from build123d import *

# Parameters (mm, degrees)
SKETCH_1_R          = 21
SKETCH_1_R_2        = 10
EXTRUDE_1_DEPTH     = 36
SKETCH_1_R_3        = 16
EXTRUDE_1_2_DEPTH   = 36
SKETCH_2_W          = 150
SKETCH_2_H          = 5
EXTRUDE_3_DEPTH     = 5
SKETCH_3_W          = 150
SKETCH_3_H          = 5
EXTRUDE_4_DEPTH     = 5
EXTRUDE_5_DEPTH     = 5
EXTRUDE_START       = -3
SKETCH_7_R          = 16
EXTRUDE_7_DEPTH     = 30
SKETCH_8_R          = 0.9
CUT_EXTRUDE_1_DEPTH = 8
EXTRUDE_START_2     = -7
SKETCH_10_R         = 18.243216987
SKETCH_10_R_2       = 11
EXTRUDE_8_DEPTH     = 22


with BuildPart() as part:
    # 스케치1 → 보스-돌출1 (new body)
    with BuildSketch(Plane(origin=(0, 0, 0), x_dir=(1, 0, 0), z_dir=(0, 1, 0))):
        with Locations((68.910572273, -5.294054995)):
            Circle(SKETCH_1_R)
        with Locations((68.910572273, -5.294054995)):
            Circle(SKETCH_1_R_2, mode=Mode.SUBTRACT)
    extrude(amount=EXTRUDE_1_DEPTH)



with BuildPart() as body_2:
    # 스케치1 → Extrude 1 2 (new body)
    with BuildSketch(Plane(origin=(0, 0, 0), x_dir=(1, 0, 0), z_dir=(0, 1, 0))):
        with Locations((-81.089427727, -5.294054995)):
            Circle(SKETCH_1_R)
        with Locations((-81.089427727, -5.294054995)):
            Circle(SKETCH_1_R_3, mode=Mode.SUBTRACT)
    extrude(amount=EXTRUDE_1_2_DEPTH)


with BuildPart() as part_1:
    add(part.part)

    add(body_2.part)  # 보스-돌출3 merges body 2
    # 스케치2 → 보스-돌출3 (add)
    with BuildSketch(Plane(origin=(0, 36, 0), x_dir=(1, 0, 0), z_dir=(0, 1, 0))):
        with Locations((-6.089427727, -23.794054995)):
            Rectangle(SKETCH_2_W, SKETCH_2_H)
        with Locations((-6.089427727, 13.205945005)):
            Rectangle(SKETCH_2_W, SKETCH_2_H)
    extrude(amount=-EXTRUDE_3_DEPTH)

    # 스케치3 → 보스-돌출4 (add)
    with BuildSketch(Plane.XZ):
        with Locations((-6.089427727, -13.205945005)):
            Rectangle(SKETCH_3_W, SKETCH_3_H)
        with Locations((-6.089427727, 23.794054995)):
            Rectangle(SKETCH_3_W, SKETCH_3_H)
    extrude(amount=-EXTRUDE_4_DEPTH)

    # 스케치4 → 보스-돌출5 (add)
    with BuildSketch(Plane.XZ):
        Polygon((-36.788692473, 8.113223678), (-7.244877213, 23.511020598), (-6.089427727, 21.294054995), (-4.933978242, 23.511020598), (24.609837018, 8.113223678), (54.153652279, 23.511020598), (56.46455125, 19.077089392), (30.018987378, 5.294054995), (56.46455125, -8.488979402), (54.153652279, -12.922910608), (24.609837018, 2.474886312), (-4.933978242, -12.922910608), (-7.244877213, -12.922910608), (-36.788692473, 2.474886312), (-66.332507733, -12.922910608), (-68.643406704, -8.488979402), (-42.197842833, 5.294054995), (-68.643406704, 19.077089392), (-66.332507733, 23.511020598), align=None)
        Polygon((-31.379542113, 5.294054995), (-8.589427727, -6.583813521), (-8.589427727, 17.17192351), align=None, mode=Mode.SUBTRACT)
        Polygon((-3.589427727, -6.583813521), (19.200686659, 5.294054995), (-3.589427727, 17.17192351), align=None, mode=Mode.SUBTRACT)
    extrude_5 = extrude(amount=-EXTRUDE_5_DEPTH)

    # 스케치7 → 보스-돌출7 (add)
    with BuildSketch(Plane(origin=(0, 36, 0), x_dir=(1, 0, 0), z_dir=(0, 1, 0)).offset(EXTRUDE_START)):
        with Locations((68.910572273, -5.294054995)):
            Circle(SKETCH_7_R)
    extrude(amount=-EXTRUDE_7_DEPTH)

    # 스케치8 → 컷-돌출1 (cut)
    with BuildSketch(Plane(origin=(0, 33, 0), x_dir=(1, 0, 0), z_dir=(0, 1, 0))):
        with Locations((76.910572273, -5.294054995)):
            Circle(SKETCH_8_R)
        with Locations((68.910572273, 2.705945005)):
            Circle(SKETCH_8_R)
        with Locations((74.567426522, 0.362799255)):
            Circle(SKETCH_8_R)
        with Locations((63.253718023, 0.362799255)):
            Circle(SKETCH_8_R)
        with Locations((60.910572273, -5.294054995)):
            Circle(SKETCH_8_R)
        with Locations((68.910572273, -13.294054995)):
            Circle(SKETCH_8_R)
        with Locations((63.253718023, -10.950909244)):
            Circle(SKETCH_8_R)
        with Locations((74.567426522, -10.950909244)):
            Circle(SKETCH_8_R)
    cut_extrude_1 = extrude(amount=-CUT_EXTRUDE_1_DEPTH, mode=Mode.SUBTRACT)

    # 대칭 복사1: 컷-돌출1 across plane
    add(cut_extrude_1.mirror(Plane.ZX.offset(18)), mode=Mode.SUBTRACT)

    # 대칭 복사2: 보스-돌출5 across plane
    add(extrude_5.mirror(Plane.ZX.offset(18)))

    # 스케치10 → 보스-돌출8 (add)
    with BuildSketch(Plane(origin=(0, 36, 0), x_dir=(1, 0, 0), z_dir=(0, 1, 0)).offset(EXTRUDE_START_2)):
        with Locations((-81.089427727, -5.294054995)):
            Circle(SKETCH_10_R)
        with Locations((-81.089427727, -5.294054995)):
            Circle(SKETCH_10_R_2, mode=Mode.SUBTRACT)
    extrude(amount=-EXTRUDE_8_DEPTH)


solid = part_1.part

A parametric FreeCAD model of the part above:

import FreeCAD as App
import Part
import Sketcher

V = App.Vector
Q = App.Units.Quantity

doc = App.newDocument("Part")
body = doc.addObject("PartDesign::Body", "Body")

sketch1 = doc.addObject("Sketcher::SketchObject", "Sketch")
body.addObject(sketch1)
sketch1.AttachmentSupport = (doc.XZ_Plane, [""])
sketch1.MapMode = "FlatFace"
sketch1.addGeometry([
    Part.Circle(V(69, 5, 0), V(0, 0, 1), 21),
    Part.Circle(V(69, 5, 0), V(0, 0, 1), 10),
], False)
sketch1.addConstraint([
    Sketcher.Constraint("Coincident", 1, 3, 0, 3),
    Sketcher.Constraint("Diameter", 0, Q("42 mm")),
    Sketcher.Constraint("Diameter", 1, Q("20 mm")),
    Sketcher.Constraint("DistanceX", -1, 1, 0, 3, Q("68.910572 mm")),
    Sketcher.Constraint("DistanceY", -1, 1, 0, 3, Q("5.294055 mm")),
])
pad1 = doc.addObject("PartDesign::Pad", "Pad")
body.addObject(pad1)
pad1.Profile = sketch1
pad1.Length = 36
pad1.Reversed = True
body2 = doc.addObject("PartDesign::Body", "Body001")

sketch2 = doc.addObject("Sketcher::SketchObject", "Sketch001")
body2.addObject(sketch2)
sketch2.AttachmentSupport = (doc.getObject("XZ_Plane001"), [""])
sketch2.MapMode = "FlatFace"
sketch2.addGeometry([
    Part.Circle(V(-81, 5, 0), V(0, 0, 1), 21),
    Part.Circle(V(-81, 5, 0), V(0, 0, 1), 16),
], False)
sketch2.addConstraint([
    Sketcher.Constraint("Coincident", 1, 3, 0, 3),
    Sketcher.Constraint("Diameter", 0, Q("42 mm")),
    Sketcher.Constraint("Diameter", 1, Q("32 mm")),
    Sketcher.Constraint("DistanceX", 0, 3, -1, 1, Q("81.089428 mm")),
    Sketcher.Constraint("DistanceY", -1, 1, 0, 3, Q("5.294055 mm")),
])
pad2 = doc.addObject("PartDesign::Pad", "Pad001")
body2.addObject(pad2)
pad2.Profile = sketch2
pad2.Length = 36
pad2.Reversed = True
body.AllowCompound = True
doc.recompute()

boolean = doc.addObject("PartDesign::Boolean", "Boolean")
body.addObject(boolean)
boolean.Type = "Fuse"
boolean.addObjects([body2])

sketch3 = doc.addObject("Sketcher::SketchObject", "Sketch002")
body.addObject(sketch3)
sketch3.AttachmentSupport = (doc.XZ_Plane, [""])
sketch3.MapMode = "FlatFace"
sketch3.AttachmentOffset = App.Placement(V(0, 0, -36), App.Rotation())
sketch3.addGeometry([
    Part.LineSegment(V(-81, 21, 0), V(-81, 26, 0)),
    Part.LineSegment(V(-81, 26, 0), V(69, 26, 0)),
    Part.LineSegment(V(69, 26, 0), V(69, 21, 0)),
    Part.LineSegment(V(69, 21, 0), V(-81, 21, 0)),
    Part.LineSegment(V(-81, -16, 0), V(-81, -11, 0)),
    Part.LineSegment(V(-81, -11, 0), V(69, -11, 0)),
    Part.LineSegment(V(69, -11, 0), V(69, -16, 0)),
    Part.LineSegment(V(69, -16, 0), V(-81, -16, 0)),
], False)
sketch3.addConstraint([
    Sketcher.Constraint("Coincident", 0, 2, 1, 1),
    Sketcher.Constraint("Coincident", 1, 2, 2, 1),
    Sketcher.Constraint("Coincident", 2, 2, 3, 1),
    Sketcher.Constraint("Coincident", 3, 2, 0, 1),
    Sketcher.Constraint("Coincident", 4, 2, 5, 1),
    Sketcher.Constraint("Coincident", 5, 2, 6, 1),
    Sketcher.Constraint("Coincident", 6, 2, 7, 1),
    Sketcher.Constraint("Coincident", 7, 2, 4, 1),
    Sketcher.Constraint("Vertical", 0),
    Sketcher.Constraint("Horizontal", 1),
    Sketcher.Constraint("Vertical", 2),
    Sketcher.Constraint("Horizontal", 3),
    Sketcher.Constraint("Vertical", 4),
    Sketcher.Constraint("Horizontal", 5),
    Sketcher.Constraint("Vertical", 6),
    Sketcher.Constraint("Horizontal", 7),
    Sketcher.Constraint("Vertical", 3, 2, 4, 2),
    Sketcher.Constraint("Vertical", 2, 2, 5, 2),
    Sketcher.Constraint("Equal", 2, 4),
    Sketcher.Constraint("DistanceX", 1, 1, 1, 2, Q("150 mm")),
    Sketcher.Constraint("DistanceY", 0, 1, 0, 2, Q("5 mm")),
    Sketcher.Constraint("DistanceY", 4, 2, 3, 2, Q("32 mm")),
    Sketcher.Constraint("DistanceX", 0, 2, -1, 1, Q("81.089428 mm")),
    Sketcher.Constraint("DistanceY", -1, 1, 0, 2, Q("26.294055 mm")),
])
pad3 = doc.addObject("PartDesign::Pad", "Pad002")
body.addObject(pad3)
pad3.Profile = sketch3
pad3.Length = 5

sketch4 = doc.addObject("Sketcher::SketchObject", "Sketch003")
body.addObject(sketch4)
sketch4.AttachmentSupport = (doc.XZ_Plane, [""])
sketch4.MapMode = "FlatFace"
sketch4.addGeometry([
    Part.LineSegment(V(-81, -11, 0), V(-81, -16, 0)),
    Part.LineSegment(V(-81, -16, 0), V(69, -16, 0)),
    Part.LineSegment(V(69, -16, 0), V(69, -11, 0)),
    Part.LineSegment(V(69, -11, 0), V(-81, -11, 0)),
    Part.LineSegment(V(-81, 26, 0), V(-81, 21, 0)),
    Part.LineSegment(V(-81, 21, 0), V(69, 21, 0)),
    Part.LineSegment(V(69, 21, 0), V(69, 26, 0)),
    Part.LineSegment(V(69, 26, 0), V(-81, 26, 0)),
], False)
sketch4.addConstraint([
    Sketcher.Constraint("Coincident", 0, 2, 1, 1),
    Sketcher.Constraint("Coincident", 1, 2, 2, 1),
    Sketcher.Constraint("Coincident", 2, 2, 3, 1),
    Sketcher.Constraint("Coincident", 3, 2, 0, 1),
    Sketcher.Constraint("Coincident", 4, 2, 5, 1),
    Sketcher.Constraint("Coincident", 5, 2, 6, 1),
    Sketcher.Constraint("Coincident", 6, 2, 7, 1),
    Sketcher.Constraint("Coincident", 7, 2, 4, 1),
    Sketcher.Constraint("Vertical", 0),
    Sketcher.Constraint("Horizontal", 1),
    Sketcher.Constraint("Vertical", 2),
    Sketcher.Constraint("Horizontal", 3),
    Sketcher.Constraint("Vertical", 4),
    Sketcher.Constraint("Horizontal", 5),
    Sketcher.Constraint("Vertical", 6),
    Sketcher.Constraint("Horizontal", 7),
    Sketcher.Constraint("Vertical", 3, 2, 4, 2),
    Sketcher.Constraint("Vertical", 2, 2, 5, 2),
    Sketcher.Constraint("Equal", 2, 4),
    Sketcher.Constraint("DistanceX", 1, 1, 1, 2, Q("150 mm")),
    Sketcher.Constraint("DistanceY", 0, 2, 0, 1, Q("5 mm")),
    Sketcher.Constraint("DistanceY", 3, 2, 4, 2, Q("32 mm")),
    Sketcher.Constraint("DistanceX", 0, 2, -1, 1, Q("81.089428 mm")),
    Sketcher.Constraint("DistanceY", 0, 2, -1, 1, Q("15.705945 mm")),
])
pad4 = doc.addObject("PartDesign::Pad", "Pad003")
body.addObject(pad4)
pad4.Profile = sketch4
pad4.Length = 5
pad4.Reversed = True

sketch5 = doc.addObject("Sketcher::SketchObject", "Sketch004")
body.addObject(sketch5)
sketch5.AttachmentSupport = (doc.XZ_Plane, [""])
sketch5.MapMode = "FlatFace"
sketch5.addGeometry([
    Part.LineSegment(V(-7.2, 23.5, 0), V(-36.8, 8.1, 0)),
    Part.LineSegment(V(-36.8, 8.1, 0), V(-66.3, 23.5, 0)),
    Part.LineSegment(V(-66.3, 23.5, 0), V(-68.6, 19.1, 0)),
    Part.LineSegment(V(-68.6, 19.1, 0), V(-42.2, 5.3, 0)),
    Part.LineSegment(V(-42.2, 5.3, 0), V(-68.6, -8.5, 0)),
    Part.LineSegment(V(-68.6, -8.5, 0), V(-66.3, -12.9, 0)),
    Part.LineSegment(V(-66.3, -12.9, 0), V(-36.8, 2.5, 0)),
    Part.LineSegment(V(-36.8, 2.5, 0), V(-7.2, -12.9, 0)),
    Part.LineSegment(V(-7.2, -12.9, 0), V(-4.9, -12.9, 0)),
    Part.LineSegment(V(-4.9, -12.9, 0), V(24.6, 2.5, 0)),
    Part.LineSegment(V(24.6, 2.5, 0), V(54.2, -12.9, 0)),
    Part.LineSegment(V(54.2, -12.9, 0), V(56.5, -8.5, 0)),
    Part.LineSegment(V(56.5, -8.5, 0), V(30, 5.3, 0)),
    Part.LineSegment(V(30, 5.3, 0), V(56.5, 19.1, 0)),
    Part.LineSegment(V(56.5, 19.1, 0), V(54.2, 23.5, 0)),
    Part.LineSegment(V(54.2, 23.5, 0), V(24.6, 8.1, 0)),
    Part.LineSegment(V(24.6, 8.1, 0), V(-4.9, 23.5, 0)),
    Part.LineSegment(V(-4.9, 23.5, 0), V(-6.1, 21.3, 0)),
    Part.LineSegment(V(-6.1, 21.3, 0), V(-7.2, 23.5, 0)),
    Part.LineSegment(V(-3.6, -6.6, 0), V(-3.6, 17.2, 0)),
    Part.LineSegment(V(-3.6, 17.2, 0), V(19.2, 5.3, 0)),
    Part.LineSegment(V(19.2, 5.3, 0), V(-3.6, -6.6, 0)),
    Part.LineSegment(V(-31.4, 5.3, 0), V(-8.6, 17.2, 0)),
    Part.LineSegment(V(-8.6, 17.2, 0), V(-8.6, -6.6, 0)),
    Part.LineSegment(V(-8.6, -6.6, 0), V(-31.4, 5.3, 0)),
], False)
sketch5.addConstraint([
    Sketcher.Constraint("Coincident", 0, 2, 1, 1),
    Sketcher.Constraint("Coincident", 1, 2, 2, 1),
    Sketcher.Constraint("Coincident", 2, 2, 3, 1),
    Sketcher.Constraint("Coincident", 3, 2, 4, 1),
    Sketcher.Constraint("Coincident", 4, 2, 5, 1),
    Sketcher.Constraint("Coincident", 5, 2, 6, 1),
    Sketcher.Constraint("Coincident", 6, 2, 7, 1),
    Sketcher.Constraint("Coincident", 7, 2, 8, 1),
    Sketcher.Constraint("Coincident", 8, 2, 9, 1),
    Sketcher.Constraint("Coincident", 9, 2, 10, 1),
    Sketcher.Constraint("Coincident", 10, 2, 11, 1),
    Sketcher.Constraint("Coincident", 11, 2, 12, 1),
    Sketcher.Constraint("Coincident", 12, 2, 13, 1),
    Sketcher.Constraint("Coincident", 13, 2, 14, 1),
    Sketcher.Constraint("Coincident", 14, 2, 15, 1),
    Sketcher.Constraint("Coincident", 15, 2, 16, 1),
    Sketcher.Constraint("Coincident", 16, 2, 17, 1),
    Sketcher.Constraint("Coincident", 17, 2, 18, 1),
    Sketcher.Constraint("Coincident", 18, 2, 0, 1),
    Sketcher.Constraint("Coincident", 19, 2, 20, 1),
    Sketcher.Constraint("Coincident", 20, 2, 21, 1),
    Sketcher.Constraint("Coincident", 21, 2, 19, 1),
    Sketcher.Constraint("Coincident", 22, 2, 23, 1),
    Sketcher.Constraint("Coincident", 23, 2, 24, 1),
    Sketcher.Constraint("Coincident", 24, 2, 22, 1),
    Sketcher.Constraint("Horizontal", 8),
    Sketcher.Constraint("Vertical", 19),
    Sketcher.Constraint("Vertical", 23),
    Sketcher.Constraint("Perpendicular", 1, 2),
    Sketcher.Constraint("Perpendicular", 2, 3),
    Sketcher.Constraint("Parallel", 0, 4),
    Sketcher.Constraint("Perpendicular", 4, 5),
    Sketcher.Constraint("Perpendicular", 5, 6),
    Sketcher.Constraint("Parallel", 3, 7),
    Sketcher.Constraint("Parallel", 6, 9),
    Sketcher.Constraint("Parallel", 7, 10),
    Sketcher.Constraint("Perpendicular", 10, 11),
    Sketcher.Constraint("Perpendicular", 11, 12),
    Sketcher.Constraint("Parallel", 9, 13),
    Sketcher.Constraint("Perpendicular", 13, 14),
    Sketcher.Constraint("Perpendicular", 14, 15),
    Sketcher.Constraint("Parallel", 12, 16),
    Sketcher.Constraint("Perpendicular", 16, 17),
    Sketcher.Constraint("Perpendicular", 15, 18),
    Sketcher.Constraint("Perpendicular", 17, 20),
    Sketcher.Constraint("Perpendicular", 18, 21),
    Sketcher.Constraint("Parallel", 21, 22),
    Sketcher.Constraint("Parallel", 20, 24),
    Sketcher.Constraint("Horizontal", 5, 2, 7, 2),
    Sketcher.Constraint("Horizontal", 6, 2, 9, 2),
    Sketcher.Constraint("Horizontal", 8, 2, 10, 2),
    Sketcher.Constraint("Horizontal", 4, 2, 11, 2),
    Sketcher.Constraint("Horizontal", 3, 2, 12, 2),
    Sketcher.Constraint("Horizontal", 2, 2, 13, 2),
    Sketcher.Constraint("Horizontal", 1, 2, 14, 2),
    Sketcher.Constraint("Horizontal", 0, 2, 15, 2),
    Sketcher.Constraint("Horizontal", 14, 2, 16, 2),
    Sketcher.Constraint("Horizontal", 16, 2, 18, 2),
    Sketcher.Constraint("Horizontal", 12, 2, 20, 2),
    Sketcher.Constraint("Horizontal", 19, 2, 22, 2),
    Sketcher.Constraint("Horizontal", 21, 2, 23, 2),
    Sketcher.Constraint("Horizontal", 20, 2, 24, 2),
    Sketcher.Constraint("Vertical", 2, 2, 4, 2),
    Sketcher.Constraint("Vertical", 1, 2, 5, 2),
    Sketcher.Constraint("Vertical", 0, 2, 6, 2),
    Sketcher.Constraint("Distance", 2, Q("5 mm")),
    Sketcher.Constraint("DistanceY", 4, 2, 1, 2, Q("32 mm")),
    Sketcher.Constraint("DistanceY", 20, 2, 17, 2, Q("16 mm")),
    Sketcher.Constraint("DistanceX", 22, 2, 19, 2, Q("5 mm")),
    Sketcher.Constraint("DistanceX", 17, 2, 19, 2, Q("2.5 mm")),
    Sketcher.Constraint("DistanceX", 8, 1, 8, 2, Q("2.310899 mm")),
    Sketcher.Constraint("Distance", 0, Q("33.3156 mm")),
    Sketcher.Constraint("DistanceY", 15, 2, 19, 2, Q("9.0587 mm")),
    Sketcher.Constraint("DistanceY", -1, 1, 1, 2, Q("23.511021 mm")),
    Sketcher.Constraint("DistanceX", 8, 2, -1, 1, Q("4.933978 mm")),
])
pad5 = doc.addObject("PartDesign::Pad", "Pad004")
body.addObject(pad5)
pad5.Profile = sketch5
pad5.Length = 5
pad5.Reversed = True

sketch6 = doc.addObject("Sketcher::SketchObject", "Sketch005")
body.addObject(sketch6)
sketch6.AttachmentSupport = (doc.XZ_Plane, [""])
sketch6.MapMode = "FlatFace"
sketch6.AttachmentOffset = App.Placement(V(0, 0, -33), App.Rotation())
sketch6.addGeometry(Part.Circle(V(69, 5, 0), V(0, 0, 1), 16), False)
sketch6.addConstraint([
    Sketcher.Constraint("Diameter", 0, Q("32 mm")),
    Sketcher.Constraint("DistanceX", -1, 1, 0, 3, Q("68.910572 mm")),
    Sketcher.Constraint("DistanceY", -1, 1, 0, 3, Q("5.294055 mm")),
])
pad6 = doc.addObject("PartDesign::Pad", "Pad005")
body.addObject(pad6)
pad6.Profile = sketch6
pad6.Length = 30

sketch7 = doc.addObject("Sketcher::SketchObject", "Sketch006")
body.addObject(sketch7)
sketch7.AttachmentSupport = (doc.XZ_Plane, [""])
sketch7.MapMode = "FlatFace"
sketch7.AttachmentOffset = App.Placement(V(0, 0, -33), App.Rotation())
sketch7.addGeometry([
    Part.Circle(V(76.9, 5.3, 0), V(0, 0, 1), 0.9),
    Part.Circle(V(68.9, -2.7, 0), V(0, 0, 1), 0.9),
    Part.Circle(V(74.6, -0.4, 0), V(0, 0, 1), 0.9),
    Part.Circle(V(63.3, -0.4, 0), V(0, 0, 1), 0.9),
    Part.Circle(V(60.9, 5.3, 0), V(0, 0, 1), 0.9),
    Part.Circle(V(68.9, 13.3, 0), V(0, 0, 1), 0.9),
    Part.Circle(V(63.3, 11, 0), V(0, 0, 1), 0.9),
    Part.Circle(V(74.6, 11, 0), V(0, 0, 1), 0.9),
], False)
sketch7.addConstraint([
    Sketcher.Constraint("Equal", 0, 1),
    Sketcher.Constraint("Equal", 1, 2),
    Sketcher.Constraint("Equal", 2, 3),
    Sketcher.Constraint("Equal", 3, 4),
    Sketcher.Constraint("Equal", 4, 5),
    Sketcher.Constraint("Equal", 5, 6),
    Sketcher.Constraint("Equal", 6, 7),
    Sketcher.Constraint("Horizontal", 2, 3, 3, 3),
    Sketcher.Constraint("Horizontal", 0, 3, 4, 3),
    Sketcher.Constraint("Horizontal", 6, 3, 7, 3),
    Sketcher.Constraint("Vertical", 1, 3, 5, 3),
    Sketcher.Constraint("Vertical", 3, 3, 6, 3),
    Sketcher.Constraint("Vertical", 2, 3, 7, 3),
    Sketcher.Constraint("Diameter", 0, Q("1.8 mm")),
    Sketcher.Constraint("DistanceX", 1, 3, 0, 3, Q("8 mm")),
    Sketcher.Constraint("DistanceY", 1, 3, 0, 3, Q("8 mm")),
    Sketcher.Constraint("DistanceX", 4, 3, 1, 3, Q("8 mm")),
    Sketcher.Constraint("DistanceY", 0, 3, 5, 3, Q("8 mm")),
    Sketcher.Constraint("DistanceY", 2, 3, -1, 1, Q("0.362799 mm")),
    Sketcher.Constraint("DistanceX", -1, 1, 3, 3, Q("63.253718 mm")),
    Sketcher.Constraint("DistanceY", -1, 1, 6, 3, Q("10.950909 mm")),
    Sketcher.Constraint("DistanceX", 3, 3, 2, 3, Q("11.313708 mm")),
    Sketcher.Constraint("DistanceX", -1, 1, 0, 3, Q("76.910572 mm")),
    Sketcher.Constraint("DistanceY", -1, 1, 0, 3, Q("5.294055 mm")),
])
pocket1 = doc.addObject("PartDesign::Pocket", "Pocket")
body.addObject(pocket1)
pocket1.Profile = sketch7
pocket1.Length = 8
pocket1.Reversed = True
doc.recompute()

datumplane = doc.addObject("PartDesign::Plane", "DatumPlane")
body.addObject(datumplane)
datumplane.AttachmentSupport = (doc.XZ_Plane, [""])
datumplane.MapMode = "FlatFace"
datumplane.AttachmentOffset = App.Placement(V(0, 0, -18), App.Rotation())
mirrored = doc.addObject("PartDesign::Mirrored", "Mirrored")
body.addObject(mirrored)
mirrored.Originals = [pocket1]
mirrored.MirrorPlane = (datumplane, [""])
body.Tip = mirrored
doc.recompute()

datumplane2 = doc.addObject("PartDesign::Plane", "DatumPlane001")
body.addObject(datumplane2)
datumplane2.AttachmentSupport = (doc.XZ_Plane, [""])
datumplane2.MapMode = "FlatFace"
datumplane2.AttachmentOffset = App.Placement(V(0, 0, -18), App.Rotation())
mirrored2 = doc.addObject("PartDesign::Mirrored", "Mirrored001")
body.addObject(mirrored2)
mirrored2.Originals = [pad5]
mirrored2.MirrorPlane = (datumplane2, [""])
body.Tip = mirrored2

sketch8 = doc.addObject("Sketcher::SketchObject", "Sketch007")
body.addObject(sketch8)
sketch8.AttachmentSupport = (doc.XZ_Plane, [""])
sketch8.MapMode = "FlatFace"
sketch8.AttachmentOffset = App.Placement(V(0, 0, -29), App.Rotation())
sketch8.addGeometry([
    Part.Circle(V(-81, 5, 0), V(0, 0, 1), 18),
    Part.Circle(V(-81, 5, 0), V(0, 0, 1), 11),
], False)
sketch8.addConstraint([
    Sketcher.Constraint("Coincident", 1, 3, 0, 3),
    Sketcher.Constraint("Diameter", 1, Q("22 mm")),
    Sketcher.Constraint("Diameter", 0, Q("36.486434 mm")),
    Sketcher.Constraint("DistanceX", 0, 3, -1, 1, Q("81.089428 mm")),
    Sketcher.Constraint("DistanceY", -1, 1, 0, 3, Q("5.294055 mm")),
])
pad7 = doc.addObject("PartDesign::Pad", "Pad006")
body.addObject(pad7)
pad7.Profile = sketch8
pad7.Length = 22

doc.recompute()
